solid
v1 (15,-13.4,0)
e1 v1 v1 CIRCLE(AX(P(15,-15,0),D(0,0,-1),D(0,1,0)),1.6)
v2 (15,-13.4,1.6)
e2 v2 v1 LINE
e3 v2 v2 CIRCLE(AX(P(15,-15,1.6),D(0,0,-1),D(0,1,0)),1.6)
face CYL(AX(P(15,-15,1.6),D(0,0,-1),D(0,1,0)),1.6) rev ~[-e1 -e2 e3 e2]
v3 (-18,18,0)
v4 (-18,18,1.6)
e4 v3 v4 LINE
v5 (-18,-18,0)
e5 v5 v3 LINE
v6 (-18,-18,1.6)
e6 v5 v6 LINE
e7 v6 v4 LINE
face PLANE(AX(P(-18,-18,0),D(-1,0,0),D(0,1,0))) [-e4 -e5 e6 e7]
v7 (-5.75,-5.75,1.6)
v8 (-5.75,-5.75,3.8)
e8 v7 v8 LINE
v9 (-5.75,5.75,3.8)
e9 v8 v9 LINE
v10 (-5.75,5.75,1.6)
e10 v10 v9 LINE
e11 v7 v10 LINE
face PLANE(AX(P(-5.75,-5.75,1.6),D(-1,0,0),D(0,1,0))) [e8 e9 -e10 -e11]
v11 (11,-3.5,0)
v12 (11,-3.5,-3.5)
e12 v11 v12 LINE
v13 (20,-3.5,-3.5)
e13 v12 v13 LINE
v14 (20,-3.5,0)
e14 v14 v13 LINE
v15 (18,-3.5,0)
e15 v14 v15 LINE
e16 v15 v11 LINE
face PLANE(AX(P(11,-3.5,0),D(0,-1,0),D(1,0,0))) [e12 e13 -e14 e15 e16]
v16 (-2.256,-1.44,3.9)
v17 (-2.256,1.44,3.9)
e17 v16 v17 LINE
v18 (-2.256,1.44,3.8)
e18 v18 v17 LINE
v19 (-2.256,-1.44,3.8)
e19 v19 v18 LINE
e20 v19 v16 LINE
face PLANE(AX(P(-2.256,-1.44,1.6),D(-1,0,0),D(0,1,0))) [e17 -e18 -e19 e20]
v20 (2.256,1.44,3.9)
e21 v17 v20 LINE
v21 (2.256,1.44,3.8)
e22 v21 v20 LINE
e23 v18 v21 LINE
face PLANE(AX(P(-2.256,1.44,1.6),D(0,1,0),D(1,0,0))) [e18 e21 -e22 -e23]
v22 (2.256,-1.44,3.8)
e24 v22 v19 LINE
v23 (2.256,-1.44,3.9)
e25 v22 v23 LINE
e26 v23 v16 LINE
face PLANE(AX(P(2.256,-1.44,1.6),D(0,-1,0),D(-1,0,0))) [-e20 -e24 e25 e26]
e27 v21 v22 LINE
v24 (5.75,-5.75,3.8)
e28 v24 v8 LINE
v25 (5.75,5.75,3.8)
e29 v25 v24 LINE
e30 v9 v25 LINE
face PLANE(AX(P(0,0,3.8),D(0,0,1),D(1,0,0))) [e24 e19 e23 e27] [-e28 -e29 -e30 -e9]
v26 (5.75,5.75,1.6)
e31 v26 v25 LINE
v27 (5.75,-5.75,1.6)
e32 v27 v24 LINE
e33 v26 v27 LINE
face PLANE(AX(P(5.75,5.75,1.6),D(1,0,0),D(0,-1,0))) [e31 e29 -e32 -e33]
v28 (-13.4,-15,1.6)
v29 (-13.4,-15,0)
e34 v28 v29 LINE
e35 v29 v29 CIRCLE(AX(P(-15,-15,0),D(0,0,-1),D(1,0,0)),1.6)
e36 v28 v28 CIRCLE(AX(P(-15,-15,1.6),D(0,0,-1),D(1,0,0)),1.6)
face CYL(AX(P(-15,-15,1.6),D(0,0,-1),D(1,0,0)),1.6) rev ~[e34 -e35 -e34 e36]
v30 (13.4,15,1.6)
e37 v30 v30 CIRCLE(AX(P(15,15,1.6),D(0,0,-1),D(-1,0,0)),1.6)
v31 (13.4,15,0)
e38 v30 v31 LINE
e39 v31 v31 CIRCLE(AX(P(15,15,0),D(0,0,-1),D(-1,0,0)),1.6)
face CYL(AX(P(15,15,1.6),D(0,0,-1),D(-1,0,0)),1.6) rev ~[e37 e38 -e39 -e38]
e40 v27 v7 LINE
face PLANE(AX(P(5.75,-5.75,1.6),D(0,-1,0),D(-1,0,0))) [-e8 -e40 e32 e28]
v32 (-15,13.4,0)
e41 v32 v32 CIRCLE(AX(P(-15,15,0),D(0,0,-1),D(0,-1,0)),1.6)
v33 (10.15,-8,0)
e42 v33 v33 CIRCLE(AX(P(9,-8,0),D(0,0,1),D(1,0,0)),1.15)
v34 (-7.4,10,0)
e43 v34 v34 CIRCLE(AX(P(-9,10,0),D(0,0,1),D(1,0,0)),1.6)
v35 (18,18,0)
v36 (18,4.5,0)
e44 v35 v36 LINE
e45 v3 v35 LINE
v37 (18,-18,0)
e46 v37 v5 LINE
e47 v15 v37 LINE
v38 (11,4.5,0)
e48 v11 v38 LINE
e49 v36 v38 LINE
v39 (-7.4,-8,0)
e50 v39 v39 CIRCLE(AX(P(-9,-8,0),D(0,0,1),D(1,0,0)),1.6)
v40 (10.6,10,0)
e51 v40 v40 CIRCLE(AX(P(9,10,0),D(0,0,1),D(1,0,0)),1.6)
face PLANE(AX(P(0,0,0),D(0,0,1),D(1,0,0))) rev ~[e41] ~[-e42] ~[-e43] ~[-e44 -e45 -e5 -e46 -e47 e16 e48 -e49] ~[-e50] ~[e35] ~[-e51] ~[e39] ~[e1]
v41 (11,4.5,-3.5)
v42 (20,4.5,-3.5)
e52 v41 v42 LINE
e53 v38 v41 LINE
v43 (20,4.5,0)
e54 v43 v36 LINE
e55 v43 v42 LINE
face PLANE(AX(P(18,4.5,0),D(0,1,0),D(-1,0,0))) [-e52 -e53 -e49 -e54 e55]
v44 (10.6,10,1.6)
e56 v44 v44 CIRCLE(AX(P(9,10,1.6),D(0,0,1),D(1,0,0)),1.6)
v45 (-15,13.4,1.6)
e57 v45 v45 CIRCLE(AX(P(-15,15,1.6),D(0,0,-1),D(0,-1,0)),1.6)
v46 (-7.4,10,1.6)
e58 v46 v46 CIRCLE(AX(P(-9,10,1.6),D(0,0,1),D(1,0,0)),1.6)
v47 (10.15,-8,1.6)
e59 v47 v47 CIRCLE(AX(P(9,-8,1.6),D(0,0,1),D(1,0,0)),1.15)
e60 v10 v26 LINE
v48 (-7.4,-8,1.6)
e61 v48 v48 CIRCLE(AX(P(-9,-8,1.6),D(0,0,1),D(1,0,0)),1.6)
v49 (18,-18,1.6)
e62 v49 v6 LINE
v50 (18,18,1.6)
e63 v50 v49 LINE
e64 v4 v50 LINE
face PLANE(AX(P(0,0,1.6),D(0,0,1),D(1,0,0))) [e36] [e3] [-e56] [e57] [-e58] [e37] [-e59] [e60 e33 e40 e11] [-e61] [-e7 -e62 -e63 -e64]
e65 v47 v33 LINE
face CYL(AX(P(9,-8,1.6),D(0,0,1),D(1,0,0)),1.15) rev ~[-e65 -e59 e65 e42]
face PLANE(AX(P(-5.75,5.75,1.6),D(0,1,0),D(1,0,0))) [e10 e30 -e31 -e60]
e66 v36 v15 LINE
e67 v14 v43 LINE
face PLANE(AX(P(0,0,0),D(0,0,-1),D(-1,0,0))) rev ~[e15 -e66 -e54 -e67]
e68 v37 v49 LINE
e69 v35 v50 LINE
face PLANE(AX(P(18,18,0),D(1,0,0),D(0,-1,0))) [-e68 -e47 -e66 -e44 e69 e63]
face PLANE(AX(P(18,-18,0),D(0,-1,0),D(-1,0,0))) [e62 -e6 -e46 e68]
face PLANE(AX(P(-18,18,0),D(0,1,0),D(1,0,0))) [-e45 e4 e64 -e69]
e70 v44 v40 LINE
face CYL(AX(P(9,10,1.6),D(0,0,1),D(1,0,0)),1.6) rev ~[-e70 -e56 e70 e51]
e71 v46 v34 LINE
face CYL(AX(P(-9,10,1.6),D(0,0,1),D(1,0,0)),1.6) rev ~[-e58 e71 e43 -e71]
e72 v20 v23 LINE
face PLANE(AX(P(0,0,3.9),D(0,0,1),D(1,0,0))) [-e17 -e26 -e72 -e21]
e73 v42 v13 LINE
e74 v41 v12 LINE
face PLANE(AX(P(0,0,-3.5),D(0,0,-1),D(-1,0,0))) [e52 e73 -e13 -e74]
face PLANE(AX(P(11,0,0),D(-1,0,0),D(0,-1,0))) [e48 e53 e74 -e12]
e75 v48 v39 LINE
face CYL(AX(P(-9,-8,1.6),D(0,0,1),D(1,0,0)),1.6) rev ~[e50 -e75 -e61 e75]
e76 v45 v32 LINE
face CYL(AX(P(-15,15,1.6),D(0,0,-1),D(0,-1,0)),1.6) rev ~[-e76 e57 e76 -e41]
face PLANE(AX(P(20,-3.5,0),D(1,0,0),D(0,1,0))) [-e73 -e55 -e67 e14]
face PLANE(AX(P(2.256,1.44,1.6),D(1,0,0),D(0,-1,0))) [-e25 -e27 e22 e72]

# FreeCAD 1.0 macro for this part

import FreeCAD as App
import Part
import Sketcher

doc = App.newDocument("Part")
params = doc.addObject("Spreadsheet::Sheet", "Params")
for row, (alias, value) in enumerate([
    ("sketch1_width", "36 mm"),
    ("pad1_length", "1.6 mm"),
    ("sketch2_diameter", "3.2 mm"),
    ("hole_diameter", "3.2 mm"),
    ("sketch3_height", "2.88 mm"),
    ("pad2_length", "2.3 mm"),
    ("sketch4_width", "11.5 mm"),
    ("pad3_length", "2.2 mm"),
    ("sketch5_width", "9 mm"),
    ("sketch5_height", "8 mm"),
    ("pad4_length", "3.5 mm"),
    ("sketch6_diameter", "2.3 mm"),
    ("sketch6_diameter2", "3.2 mm"),
], start=1):
    params.set(f"A{row}", alias)
    params.set(f"B{row}", "=" + value)
    params.setAlias(f"B{row}", alias)

body = doc.addObject("PartDesign::Body", "Body")

# Sketch on XY plane
sketch1 = doc.addObject("Sketcher::SketchObject", "Sketch")
body.addObject(sketch1)
sketch1.AttachmentSupport = (doc.XY_Plane, [""])
sketch1.MapMode = "FlatFace"
sketch1.addGeometry([
    Part.LineSegment(App.Vector(18, 18, 0), App.Vector(-18, 18, 0)),
    Part.LineSegment(App.Vector(-18, 18, 0), App.Vector(-18, -18, 0)),
    Part.LineSegment(App.Vector(-18, -18, 0), App.Vector(18, -18, 0)),
    Part.LineSegment(App.Vector(18, -18, 0), App.Vector(18, 18, 0)),
], False)
sketch1.addConstraint([
    Sketcher.Constraint("Coincident", 0, 2, 1, 1),
    Sketcher.Constraint("Coincident", 1, 2, 2, 1),
    Sketcher.Constraint("Coincident", 2, 2, 3, 1),
    Sketcher.Constraint("Coincident", 3, 2, 0, 1),
    Sketcher.Constraint("Horizontal", 0),
    Sketcher.Constraint("Vertical", 1),
    Sketcher.Constraint("Horizontal", 2),
    Sketcher.Constraint("Vertical", 3),
    Sketcher.Constraint("Symmetric", 0, 2, 2, 2, -1, 1),
    Sketcher.Constraint("Equal", 2, 1),
    Sketcher.Constraint("DistanceX", 0, 2, 0, 1, 36.0),
])
sketch1.setExpression("Constraints[10]", "Params.sketch1_width")
pad1 = doc.addObject("PartDesign::Pad", "Pad")
body.addObject(pad1)
pad1.Profile = sketch1
pad1.setExpression("Length", "Params.pad1_length")

# Sketch on XY plane
sketch2 = doc.addObject("Sketcher::SketchObject", "Sketch001")
body.addObject(sketch2)
sketch2.AttachmentSupport = (doc.XY_Plane, [""])
sketch2.MapMode = "FlatFace"
sketch2.AttachmentOffset = App.Placement(App.Vector(0, 0, 1.6), App.Rotation())
sketch2.addGeometry(Part.Circle(App.Vector(-15, 15, 0), App.Vector(0, 0, 1), 1.6), False)
sketch2.addConstraint([
    Sketcher.Constraint("Diameter", 0, 3.2),
    Sketcher.Constraint("DistanceX", 0, 3, -1, 1, 15.0),
    Sketcher.Constraint("DistanceY", -1, 1, 0, 3, 15.0),
])
sketch2.setExpression("Constraints[0]", "Params.sketch2_diameter")
doc.recompute()
hole = doc.addObject("PartDesign::Hole", "Hole")
body.addObject(hole)
hole.Profile = sketch2
hole.ThreadType = "None"
hole.setExpression("Diameter", "Params.hole_diameter")
hole.DepthType = "ThroughAll"
doc.recompute()

polarpattern = doc.addObject("PartDesign::PolarPattern", "PolarPattern")
body.addObject(polarpattern)
polarpattern.Originals = [hole]
polarpattern.Axis = (doc.Z_Axis, [""])
polarpattern.Angle = 360
polarpattern.Occurrences = 4
body.Tip = polarpattern

# Sketch on XY plane
sketch3 = doc.addObject("Sketcher::SketchObject", "Sketch002")
body.addObject(sketch3)
sketch3.AttachmentSupport = (doc.XY_Plane, [""])
sketch3.MapMode = "FlatFace"
sketch3.AttachmentOffset = App.Placement(App.Vector(0, 0, 1.6), App.Rotation())
sketch3.addGeometry([
    Part.LineSegment(App.Vector(2.3, 1.4, 0), App.Vector(-2.3, 1.4, 0)),
    Part.LineSegment(App.Vector(-2.3, 1.4, 0), App.Vector(-2.3, -1.4, 0)),
    Part.LineSegment(App.Vector(-2.3, -1.4, 0), App.Vector(2.3, -1.4, 0)),
    Part.LineSegment(App.Vector(2.3, -1.4, 0), App.Vector(2.3, 1.4, 0)),
], False)
sketch3.addConstraint([
    Sketcher.Constraint("Coincident", 0, 2, 1, 1),
    Sketcher.Constraint("Coincident", 1, 2, 2, 1),
    Sketcher.Constraint("Coincident", 2, 2, 3, 1),
    Sketcher.Constraint("Coincident", 3, 2, 0, 1),
    Sketcher.Constraint("Horizontal", 0),
    Sketcher.Constraint("Vertical", 1),
    Sketcher.Constraint("Horizontal", 2),
    Sketcher.Constraint("Vertical", 3),
    Sketcher.Constraint("Symmetric", 0, 2, 2, 2, -1, 1),
    Sketcher.Constraint("DistanceY", 1, 2, 1, 1, 2.88),
    Sketcher.Constraint("DistanceX", 0, 2, 0, 1, 4.512),
])
sketch3.setExpression("Constraints[9]", "Params.sketch3_height")
pad2 = doc.addObject("PartDesign::Pad", "Pad001")
body.addObject(pad2)
pad2.Profile = sketch3
pad2.setExpression("Length", "Params.pad2_length")

# Sketch on XY plane
sketch4 = doc.addObject("Sketcher::SketchObject", "Sketch003")
body.addObject(sketch4)
sketch4.AttachmentSupport = (doc.XY_Plane, [""])
sketch4.MapMode = "FlatFace"
sketch4.AttachmentOffset = App.Placement(App.Vector(0, 0, 1.6), App.Rotation())
sketch4.addGeometry([
    Part.LineSegment(App.Vector(6, 6, 0), App.Vector(-6, 6, 0)),
    Part.LineSegment(App.Vector(-6, 6, 0), App.Vector(-6, -6, 0)),
    Part.LineSegment(App.Vector(-6, -6, 0), App.Vector(6, -6, 0)),
    Part.LineSegment(App.Vector(6, -6, 0), App.Vector(6, 6, 0)),
], False)
sketch4.addConstraint([
    Sketcher.Constraint("Coincident", 0, 2, 1, 1),
    Sketcher.Constraint("Coincident", 1, 2, 2, 1),
    Sketcher.Constraint("Coincident", 2, 2, 3, 1),
    Sketcher.Constraint("Coincident", 3, 2, 0, 1),
    Sketcher.Constraint("Horizontal", 0),
    Sketcher.Constraint("Vertical", 1),
    Sketcher.Constraint("Horizontal", 2),
    Sketcher.Constraint("Vertical", 3),
    Sketcher.Constraint("Symmetric", 0, 2, 2, 2, -1, 1),
    Sketcher.Constraint("Equal", 2, 1),
    Sketcher.Constraint("DistanceX", 0, 2, 0, 1, 11.5),
])
sketch4.setExpression("Constraints[10]", "Params.sketch4_width")
pad3 = doc.addObject("PartDesign::Pad", "Pad002")
body.addObject(pad3)
pad3.Profile = sketch4
pad3.setExpression("Length", "Params.pad3_length")

# Sketch on XY plane
sketch5 = doc.addObject("Sketcher::SketchObject", "Sketch004")
body.addObject(sketch5)
sketch5.AttachmentSupport = (doc.XY_Plane, [""])
sketch5.MapMode = "FlatFace"
sketch5.addGeometry([
    Part.LineSegment(App.Vector(11, -4, 0), App.Vector(11, 4, 0)),
    Part.LineSegment(App.Vector(11, 4, 0), App.Vector(20, 4, 0)),
    Part.LineSegment(App.Vector(20, 4, 0), App.Vector(20, -4, 0)),
    Part.LineSegment(App.Vector(20, -4, 0), App.Vector(11, -4, 0)),
], False)
sketch5.addConstraint([
    Sketcher.Constraint("Coincident", 0, 2, 1, 1),
    Sketcher.Constraint("Coincident", 1, 2, 2, 1),
    Sketcher.Constraint("Coincident", 2, 2, 3, 1),
    Sketcher.Constraint("Coincident", 3, 2, 0, 1),
    Sketcher.Constraint("Vertical", 0),
    Sketcher.Constraint("Horizontal", 1),
    Sketcher.Constraint("Vertical", 2),
    Sketcher.Constraint("Horizontal", 3),
    Sketcher.Constraint("DistanceX", 1, 1, 1, 2, 9.0),
    Sketcher.Constraint("DistanceY", 0, 1, 0, 2, 8.0),
    Sketcher.Constraint("DistanceX", -1, 1, 0, 2, 11.0),
    Sketcher.Constraint("DistanceY", -1, 1, 0, 2, 4.5),
])
sketch5.setExpression("Constraints[8]", "Params.sketch5_width")
sketch5.setExpression("Constraints[9]", "Params.sketch5_height")
pad4 = doc.addObject("PartDesign::Pad", "Pad003")
body.addObject(pad4)
pad4.Profile = sketch5
pad4.setExpression("Length", "Params.pad4_length")
pad4.Reversed = True

# Sketch on XY plane
sketch6 = doc.addObject("Sketcher::SketchObject", "Sketch005")
body.addObject(sketch6)
sketch6.AttachmentSupport = (doc.XY_Plane, [""])
sketch6.MapMode = "FlatFace"
sketch6.AttachmentOffset = App.Placement(App.Vector(0, 0, 1.6), App.Rotation())
sketch6.addGeometry([
    Part.Circle(App.Vector(9, -8, 0), App.Vector(0, 0, 1), 1.1),
    Part.Circle(App.Vector(-9, -8, 0), App.Vector(0, 0, 1), 1.6),
    Part.Circle(App.Vector(-9, 10, 0), App.Vector(0, 0, 1), 1.6),
    Part.Circle(App.Vector(9, 10, 0), App.Vector(0, 0, 1), 1.6),
], False)
sketch6.addConstraint([
    Sketcher.Constraint("Equal", 1, 2),
    Sketcher.Constraint("Equal", 2, 3),
    Sketcher.Constraint("Symmetric", 0, 3, 1, 3, -2),
    Sketcher.Constraint("Symmetric", 2, 3, 3, 3, -2),
    Sketcher.Constraint("Vertical", 1, 3, 2, 3),
    Sketcher.Constraint("Diameter", 0, 2.3),
    Sketcher.Constraint("Diameter", 1, 3.2),
    Sketcher.Constraint("DistanceX", -1, 1, 0, 3, 9.0),
    Sketcher.Constraint("DistanceY", 0, 3, -1, 1, 8.0),
    Sketcher.Constraint("DistanceY", -1, 1, 2, 3, 10.0),
])
sketch6.setExpression("Constraints[5]", "Params.sketch6_diameter")
sketch6.setExpression("Constraints[6]", "Params.sketch6_diameter2")
pocket1 = doc.addObject("PartDesign::Pocket", "Pocket")
body.addObject(pocket1)
pocket1.Profile = sketch6
pocket1.Type = "ThroughAll"

doc.recompute()
